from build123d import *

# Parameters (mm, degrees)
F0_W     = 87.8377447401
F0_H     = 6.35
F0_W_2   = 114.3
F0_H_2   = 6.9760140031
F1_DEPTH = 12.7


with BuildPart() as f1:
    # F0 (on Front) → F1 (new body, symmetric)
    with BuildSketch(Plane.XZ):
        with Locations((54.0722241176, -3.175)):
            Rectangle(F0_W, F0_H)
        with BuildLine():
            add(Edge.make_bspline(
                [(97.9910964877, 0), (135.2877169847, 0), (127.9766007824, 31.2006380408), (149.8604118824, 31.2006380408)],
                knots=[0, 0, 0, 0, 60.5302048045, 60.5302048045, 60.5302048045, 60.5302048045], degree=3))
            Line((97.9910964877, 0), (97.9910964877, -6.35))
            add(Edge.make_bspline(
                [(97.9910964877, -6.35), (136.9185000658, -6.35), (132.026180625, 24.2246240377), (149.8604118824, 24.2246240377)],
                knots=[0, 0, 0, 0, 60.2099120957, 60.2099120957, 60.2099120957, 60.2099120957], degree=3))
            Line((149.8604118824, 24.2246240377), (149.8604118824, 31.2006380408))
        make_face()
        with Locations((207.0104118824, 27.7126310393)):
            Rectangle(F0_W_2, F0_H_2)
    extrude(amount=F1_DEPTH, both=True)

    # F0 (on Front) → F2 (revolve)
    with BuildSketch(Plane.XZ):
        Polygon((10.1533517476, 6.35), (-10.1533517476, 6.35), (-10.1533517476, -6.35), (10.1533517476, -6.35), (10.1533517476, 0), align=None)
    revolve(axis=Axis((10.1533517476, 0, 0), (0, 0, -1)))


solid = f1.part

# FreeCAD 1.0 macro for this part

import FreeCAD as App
import Part
import Sketcher

V = App.Vector
Q = App.Units.Quantity

doc = App.newDocument("Part")
params = doc.addObject("Spreadsheet::Sheet", "Params")
for row, (alias, value) in enumerate([
    ("sketch1_width", "4.5 in"),
    ("pad1_length", "1 in"),
    ("sketch2_height", "0.5 in"),
    ("revolution_angle", "360 deg"),
], start=1):
    params.set(f"A{row}", alias)
    params.set(f"B{row}", "=" + value)
    params.setAlias(f"B{row}", alias)

body = doc.addObject("PartDesign::Body", "Body")

sketch1 = body.newObject("Sketcher::SketchObject", "Sketch")
sketch1.AttachmentSupport = (doc.getObject("XZ_Plane"), [""])
sketch1.MapMode = "FlatFace"
sketch1.addGeometry([
    Part.LineSegment(V(10.153352, 0, 0), V(10.153352, -6.35, 0)),
    Part.LineSegment(V(10.153352, -6.35, 0), V(97.991096, -6.35, 0)),
    Part.BSplineCurve([V(97.991096, -6.35, 0), V(136.9185, -6.35, 0), V(132.026181, 24.224624, 0), V(149.860412, 24.224624, 0)], [4, 4], [0, 60.209912096], False, 3, [1, 1, 1, 1], False),
    Part.LineSegment(V(149.860412, 24.224624, 0), V(264.160412, 24.224624, 0)),
    Part.LineSegment(V(264.160412, 24.224624, 0), V(264.160412, 31.200638, 0)),
    Part.LineSegment(V(264.160412, 31.200638, 0), V(149.860412, 31.200638, 0)),
    Part.BSplineCurve([V(97.991096, 0, 0), V(135.287717, 0, 0), V(127.976601, 31.200638, 0), V(149.860412, 31.200638, 0)], [4, 4], [0, 60.530204805], False, 3, [1, 1, 1, 1], False),
    Part.LineSegment(V(97.991096, 0, 0), V(10.153352, 0, 0)),
], False)
sketch1.addConstraint([
    Sketcher.Constraint("Block", 2),
    Sketcher.Constraint("Block", 6),
    Sketcher.Constraint("Coincident", 0, 2, 1, 1),
    Sketcher.Constraint("Coincident", 1, 2, 2, 1),
    Sketcher.Constraint("Coincident", 2, 2, 3, 1),
    Sketcher.Constraint("Coincident", 3, 2, 4, 1),
    Sketcher.Constraint("Coincident", 4, 2, 5, 1),
    Sketcher.Constraint("Coincident", 5, 2, 6, 2),
    Sketcher.Constraint("Coincident", 6, 1, 7, 1),
    Sketcher.Constraint("Coincident", 7, 2, 0, 1),
    Sketcher.Constraint("Vertical", 0),
    Sketcher.Constraint("Horizontal", 1),
    Sketcher.Constraint("Horizontal", 3),
    Sketcher.Constraint("Vertical", 4),
    Sketcher.Constraint("Horizontal", 5),
    Sketcher.Constraint("Horizontal", 7),
    Sketcher.Constraint("DistanceX", 3, 1, 3, 2, Q("4.5 in")),
    Sketcher.Constraint("DistanceX", 1, 1, 1, 2, Q("87.837745 mm")),
])
sketch1.setExpression("Constraints[16]", "Params.sketch1_width")
pad1 = body.newObject("PartDesign::Pad", "Pad")
pad1.Profile = sketch1
pad1.setExpression("Length", "Params.pad1_length")
pad1.Midplane = True

sketch2 = body.newObject("Sketcher::SketchObject", "Sketch001")
sketch2.AttachmentSupport = (doc.getObject("XZ_Plane"), [""])
sketch2.MapMode = "FlatFace"
sketch2.addGeometry([
    Part.LineSegment(V(10, 6, 0), V(-10, 6, 0)),
    Part.LineSegment(V(-10, 6, 0), V(-10, -6, 0)),
    Part.LineSegment(V(-10, -6, 0), V(10, -6, 0)),
    Part.LineSegment(V(10, -6, 0), V(10, 6, 0)),
], False)
sketch2.addGeometry(Part.LineSegment(V(10, 6, 0), V(10, -6, 0)), True)
sketch2.addConstraint([
    Sketcher.Constraint("Coincident", 0, 2, 1, 1),
    Sketcher.Constraint("Coincident", 1, 2, 2, 1),
    Sketcher.Constraint("Coincident", 2, 2, 3, 1),
    Sketcher.Constraint("Coincident", 3, 2, 0, 1),
    Sketcher.Constraint("Horizontal", 0),
    Sketcher.Constraint("Vertical", 1),
    Sketcher.Constraint("Horizontal", 2),
    Sketcher.Constraint("Vertical", 3),
    Sketcher.Constraint("Vertical", 4),
    Sketcher.Constraint("Coincident", 4, 1, 3, 2),
    Sketcher.Constraint("Symmetric", 0, 2, 2, 2, -1, 1),
    Sketcher.Constraint("Horizontal", 1, 2, 4, 2),
    Sketcher.Constraint("DistanceY", 1, 2, 1, 1, Q("0.5 in")),
    Sketcher.Constraint("DistanceX", 0, 2, 0, 1, Q("20.306703 mm")),
])
sketch2.setExpression("Constraints[12]", "Params.sketch2_height")
revolution = body.newObject("PartDesign::Revolution", "Revolution")
revolution.Profile = sketch2
revolution.ReferenceAxis = (sketch2, ["Axis0"])
revolution.setExpression("Angle", "Params.revolution_angle")

doc.recompute()
